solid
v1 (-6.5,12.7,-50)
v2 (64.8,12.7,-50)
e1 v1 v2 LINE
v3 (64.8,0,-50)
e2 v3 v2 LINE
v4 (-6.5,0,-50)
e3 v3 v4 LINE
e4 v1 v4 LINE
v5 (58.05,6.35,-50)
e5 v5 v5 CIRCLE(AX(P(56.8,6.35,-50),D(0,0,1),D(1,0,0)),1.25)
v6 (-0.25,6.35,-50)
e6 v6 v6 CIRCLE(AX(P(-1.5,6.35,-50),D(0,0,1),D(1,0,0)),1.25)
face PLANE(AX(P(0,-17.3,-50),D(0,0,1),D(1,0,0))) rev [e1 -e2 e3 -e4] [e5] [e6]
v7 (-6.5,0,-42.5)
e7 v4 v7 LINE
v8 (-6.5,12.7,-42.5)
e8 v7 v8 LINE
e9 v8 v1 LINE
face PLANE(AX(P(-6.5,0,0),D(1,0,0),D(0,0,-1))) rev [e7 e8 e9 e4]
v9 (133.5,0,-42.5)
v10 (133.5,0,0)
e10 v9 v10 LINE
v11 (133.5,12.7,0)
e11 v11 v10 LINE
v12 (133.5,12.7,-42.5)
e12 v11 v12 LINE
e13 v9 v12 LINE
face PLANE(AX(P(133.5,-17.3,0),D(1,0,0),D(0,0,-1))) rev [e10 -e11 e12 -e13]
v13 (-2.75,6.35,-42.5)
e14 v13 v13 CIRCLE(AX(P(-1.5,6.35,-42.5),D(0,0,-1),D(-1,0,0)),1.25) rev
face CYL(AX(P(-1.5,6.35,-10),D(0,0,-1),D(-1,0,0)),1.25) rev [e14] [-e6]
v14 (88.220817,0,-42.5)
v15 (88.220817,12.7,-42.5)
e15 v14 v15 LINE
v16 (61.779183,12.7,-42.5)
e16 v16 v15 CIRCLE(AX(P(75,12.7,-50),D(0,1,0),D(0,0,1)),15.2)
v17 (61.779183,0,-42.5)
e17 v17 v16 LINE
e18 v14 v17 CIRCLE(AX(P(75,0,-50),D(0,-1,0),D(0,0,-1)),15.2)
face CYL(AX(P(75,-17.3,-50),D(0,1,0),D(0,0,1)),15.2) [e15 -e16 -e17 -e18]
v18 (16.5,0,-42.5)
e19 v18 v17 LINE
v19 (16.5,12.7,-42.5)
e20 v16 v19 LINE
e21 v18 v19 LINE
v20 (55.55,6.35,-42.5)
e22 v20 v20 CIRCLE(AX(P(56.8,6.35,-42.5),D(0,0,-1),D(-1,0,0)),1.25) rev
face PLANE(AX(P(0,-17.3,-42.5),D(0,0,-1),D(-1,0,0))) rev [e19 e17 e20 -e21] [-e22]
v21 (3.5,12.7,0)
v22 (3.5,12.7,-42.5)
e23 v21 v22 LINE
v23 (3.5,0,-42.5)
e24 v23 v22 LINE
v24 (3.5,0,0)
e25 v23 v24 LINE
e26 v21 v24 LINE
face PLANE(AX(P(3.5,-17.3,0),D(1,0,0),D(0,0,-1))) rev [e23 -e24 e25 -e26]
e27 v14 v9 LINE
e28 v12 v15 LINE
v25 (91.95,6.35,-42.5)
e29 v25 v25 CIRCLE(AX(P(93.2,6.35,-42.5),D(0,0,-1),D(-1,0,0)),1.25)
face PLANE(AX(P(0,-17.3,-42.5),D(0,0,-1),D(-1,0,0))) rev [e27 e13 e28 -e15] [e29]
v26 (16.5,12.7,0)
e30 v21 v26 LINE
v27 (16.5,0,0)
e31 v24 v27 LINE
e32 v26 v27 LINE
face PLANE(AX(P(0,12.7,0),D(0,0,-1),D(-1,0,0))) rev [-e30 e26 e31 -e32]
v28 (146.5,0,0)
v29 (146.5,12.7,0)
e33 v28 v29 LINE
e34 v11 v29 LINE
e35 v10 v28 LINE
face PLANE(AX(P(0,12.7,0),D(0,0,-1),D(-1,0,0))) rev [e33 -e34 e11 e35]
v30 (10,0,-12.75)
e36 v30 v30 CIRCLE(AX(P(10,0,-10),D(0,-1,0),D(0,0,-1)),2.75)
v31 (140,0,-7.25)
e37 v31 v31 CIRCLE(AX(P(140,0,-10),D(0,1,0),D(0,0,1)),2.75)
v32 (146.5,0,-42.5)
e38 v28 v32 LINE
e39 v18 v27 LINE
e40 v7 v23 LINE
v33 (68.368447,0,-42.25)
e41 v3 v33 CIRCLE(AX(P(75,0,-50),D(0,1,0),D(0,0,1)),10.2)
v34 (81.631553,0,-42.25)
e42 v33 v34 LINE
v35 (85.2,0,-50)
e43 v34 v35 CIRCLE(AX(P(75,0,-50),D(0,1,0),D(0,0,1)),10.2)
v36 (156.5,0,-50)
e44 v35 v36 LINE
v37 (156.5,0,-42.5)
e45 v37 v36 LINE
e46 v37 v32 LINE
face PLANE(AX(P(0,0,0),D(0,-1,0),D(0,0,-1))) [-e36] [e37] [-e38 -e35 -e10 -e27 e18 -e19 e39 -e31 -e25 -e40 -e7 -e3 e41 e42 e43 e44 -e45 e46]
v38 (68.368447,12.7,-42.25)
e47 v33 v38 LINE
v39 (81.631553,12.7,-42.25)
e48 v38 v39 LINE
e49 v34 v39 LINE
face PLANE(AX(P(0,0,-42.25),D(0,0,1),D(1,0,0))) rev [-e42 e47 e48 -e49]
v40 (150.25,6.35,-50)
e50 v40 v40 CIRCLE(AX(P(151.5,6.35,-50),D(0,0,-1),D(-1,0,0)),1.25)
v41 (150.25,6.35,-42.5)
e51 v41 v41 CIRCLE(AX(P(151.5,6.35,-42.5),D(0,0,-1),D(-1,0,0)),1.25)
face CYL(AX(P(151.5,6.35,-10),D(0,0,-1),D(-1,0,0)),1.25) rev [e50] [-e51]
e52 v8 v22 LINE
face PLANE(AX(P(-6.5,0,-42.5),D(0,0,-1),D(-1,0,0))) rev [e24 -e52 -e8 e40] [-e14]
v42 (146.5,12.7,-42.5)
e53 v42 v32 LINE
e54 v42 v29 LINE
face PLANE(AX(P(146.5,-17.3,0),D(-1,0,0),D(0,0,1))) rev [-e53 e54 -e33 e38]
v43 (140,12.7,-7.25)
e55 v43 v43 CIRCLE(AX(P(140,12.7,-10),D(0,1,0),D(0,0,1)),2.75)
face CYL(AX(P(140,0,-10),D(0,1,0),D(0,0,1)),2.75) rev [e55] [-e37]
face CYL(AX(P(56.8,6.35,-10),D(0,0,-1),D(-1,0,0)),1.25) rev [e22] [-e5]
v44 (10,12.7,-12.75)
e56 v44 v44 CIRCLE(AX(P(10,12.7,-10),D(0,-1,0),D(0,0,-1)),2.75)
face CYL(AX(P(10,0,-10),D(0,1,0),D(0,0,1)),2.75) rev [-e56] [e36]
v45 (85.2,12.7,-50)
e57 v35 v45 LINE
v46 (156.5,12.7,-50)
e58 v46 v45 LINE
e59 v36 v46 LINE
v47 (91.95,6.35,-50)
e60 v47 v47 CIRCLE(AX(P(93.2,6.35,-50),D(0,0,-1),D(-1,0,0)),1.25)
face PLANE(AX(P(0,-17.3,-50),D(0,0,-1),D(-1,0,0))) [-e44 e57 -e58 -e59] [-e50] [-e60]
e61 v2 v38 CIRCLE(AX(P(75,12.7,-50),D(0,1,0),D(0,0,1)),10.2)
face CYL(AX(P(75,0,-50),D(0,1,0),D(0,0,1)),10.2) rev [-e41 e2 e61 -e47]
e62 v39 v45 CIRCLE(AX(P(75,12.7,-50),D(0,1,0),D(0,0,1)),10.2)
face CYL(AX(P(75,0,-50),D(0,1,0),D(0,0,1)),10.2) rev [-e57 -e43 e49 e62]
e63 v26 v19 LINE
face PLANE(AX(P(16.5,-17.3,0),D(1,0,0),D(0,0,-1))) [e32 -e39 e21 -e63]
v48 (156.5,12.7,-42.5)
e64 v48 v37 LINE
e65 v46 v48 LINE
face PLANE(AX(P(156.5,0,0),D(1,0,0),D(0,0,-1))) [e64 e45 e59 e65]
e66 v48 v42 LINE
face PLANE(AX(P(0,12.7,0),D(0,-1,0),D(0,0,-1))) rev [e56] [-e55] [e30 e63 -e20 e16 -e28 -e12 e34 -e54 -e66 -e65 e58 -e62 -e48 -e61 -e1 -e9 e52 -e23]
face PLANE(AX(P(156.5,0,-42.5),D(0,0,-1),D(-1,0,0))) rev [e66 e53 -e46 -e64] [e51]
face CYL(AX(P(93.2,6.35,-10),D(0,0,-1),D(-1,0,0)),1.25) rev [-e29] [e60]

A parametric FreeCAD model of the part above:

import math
import FreeCAD as App
import Part
import Sketcher

V = App.Vector


def add_polygon(sketch, points):
    """Adds a closed chain of lines whose ends are joined by coincident constraints."""
    first, n = sketch.GeometryCount, len(points)
    for a, b in zip(points, points[1:] + points[:1]):
        sketch.addGeometry(Part.LineSegment(App.Vector(*a, 0), App.Vector(*b, 0)), False)
    for i in range(n):
        sketch.addConstraint(Sketcher.Constraint("Coincident", first + i, 2, first + (i + 1) % n, 1))

doc = App.newDocument("Part")
body = doc.addObject("PartDesign::Body", "Body")

sketch1 = doc.addObject("Sketcher::SketchObject", "Sketch")
body.addObject(sketch1)
sketch1.AttachmentSupport = (doc.XZ_Plane, [""])
sketch1.MapMode = "FlatFace"
add_polygon(sketch1, [(0, -100), (0, 0), (150, 0), (150, -100)])
sketch1.addConstraint([
    Sketcher.Constraint("Vertical", 0),
    Sketcher.Constraint("Horizontal", 1),
    Sketcher.Constraint("Vertical", 2),
    Sketcher.Constraint("Horizontal", 3),
    Sketcher.Constraint("Coincident", 0, 2, -1, 1),
    Sketcher.Constraint("DistanceX", 1, 1, 1, 2, 150.0),
    Sketcher.Constraint("DistanceY", 0, 1, 0, 2, 100.0),
])
pad1 = doc.addObject("PartDesign::Pad", "Pad")
body.addObject(pad1)
pad1.Profile = sketch1
pad1.Length = 12.7
pad1.Reversed = True

sketch2 = doc.addObject("Sketcher::SketchObject", "Sketch001")
body.addObject(sketch2)
sketch2.AttachmentSupport = (doc.XZ_Plane, [""])
sketch2.MapMode = "FlatFace"
sketch2.AttachmentOffset = App.Placement(V(0, 0, -12.7), App.Rotation())
sketch2.addGeometry([
    Part.ArcOfCircle(Part.Circle(V(75, -50, 0), V(0, 0, 1), 10.2), math.radians(0), math.radians(49.446915)),
    Part.ArcOfCircle(Part.Circle(V(75, -50, 0), V(0, 0, 1), 10.2), math.radians(-49.446915), math.radians(0)),
    Part.LineSegment(V(81.631553, -57.75, 0), V(68.368447, -57.75, 0)),
    Part.ArcOfCircle(Part.Circle(V(75, -50, 0), V(0, 0, 1), 10.2), math.radians(180), math.radians(229.446915)),
    Part.ArcOfCircle(Part.Circle(V(75, -50, 0), V(0, 0, 1), 10.2), math.radians(130.553085), math.radians(180)),
    Part.LineSegment(V(68.368447, -42.25, 0), V(81.631553, -42.25, 0)),
    Part.Circle(V(10, -90, 0), V(0, 0, 1), 2.75),
    Part.Circle(V(140, -90, 0), V(0, 0, 1), 2.75),
    Part.Circle(V(140, -10, 0), V(0, 0, 1), 2.75),
    Part.Circle(V(10, -10, 0), V(0, 0, 1), 2.75),
], False)
sketch2.addConstraint([
    Sketcher.Constraint("Tangent", 0, 1, 1, 2),
    Sketcher.Constraint("Coincident", 1, 1, 2, 1),
    Sketcher.Constraint("Coincident", 2, 2, 3, 2),
    Sketcher.Constraint("Tangent", 3, 1, 4, 2),
    Sketcher.Constraint("Coincident", 4, 1, 5, 1),
    Sketcher.Constraint("Coincident", 5, 2, 0, 2),
    Sketcher.Constraint("Horizontal", 2),
    Sketcher.Constraint("Horizontal", 5),
    Sketcher.Constraint("Coincident", 3, 3, 0, 3),
    Sketcher.Constraint("Equal", 0, 1),
    Sketcher.Constraint("Equal", 1, 3),
    Sketcher.Constraint("Equal", 3, 4),
    Sketcher.Constraint("Equal", 6, 7),
    Sketcher.Constraint("Equal", 7, 8),
    Sketcher.Constraint("Equal", 8, 9),
    Sketcher.Constraint("Horizontal", 6, 3, 7, 3),
    Sketcher.Constraint("Horizontal", 8, 3, 9, 3),
    Sketcher.Constraint("Horizontal", 4, 3, 0, 1),
    Sketcher.Constraint("Horizontal", 0, 1, 3, 1),
    Sketcher.Constraint("Vertical", 7, 3, 8, 3),
    Sketcher.Constraint("Vertical", 6, 3, 9, 3),
    Sketcher.Constraint("Vertical", 2, 2, 4, 1),
    Sketcher.Constraint("Diameter", 6, 5.5),
    Sketcher.Constraint("Radius", 0, 10.2),
    Sketcher.Constraint("DistanceX", -1, 1, 0, 3, 75.0),
    Sketcher.Constraint("DistanceY", 0, 3, -1, 1, 50.0),
    Sketcher.Constraint("DistanceX", -1, 1, 6, 3, 10.0),
    Sketcher.Constraint("DistanceY", 6, 3, -1, 1, 90.0),
    Sketcher.Constraint("DistanceX", -1, 1, 7, 3, 140.0),
    Sketcher.Constraint("DistanceY", 8, 3, -1, 1, 10.0),
    Sketcher.Constraint("DistanceY", 1, 1, -1, 1, 57.75),
])
pocket1 = doc.addObject("PartDesign::Pocket", "Pocket")
body.addObject(pocket1)
pocket1.Profile = sketch2
pocket1.Length = 12.7
pocket1.Reversed = True

sketch3 = doc.addObject("Sketcher::SketchObject", "Sketch002")
body.addObject(sketch3)
sketch3.AttachmentSupport = (doc.XZ_Plane, [""])
sketch3.MapMode = "FlatFace"
sketch3.AttachmentOffset = App.Placement(V(0, 0, -12.7), App.Rotation())
sketch3.addGeometry([
    Part.LineSegment(V(146.5, -50, 0), V(146.5, 0, 0)),
    Part.LineSegment(V(146.5, 0, 0), V(150, 0, 0)),
    Part.LineSegment(V(150, 0, 0), V(150, -100, 0)),
    Part.LineSegment(V(150, -100, 0), V(0, -100, 0)),
    Part.LineSegment(V(0, -100, 0), V(0, 0, 0)),
    Part.LineSegment(V(0, 0, 0), V(3.5, 0, 0)),
    Part.LineSegment(V(3.5, 0, 0), V(3.5, -50, 0)),
    Part.LineSegment(V(3.5, -50, 0), V(64.8, -50, 0)),
    Part.ArcOfCircle(Part.Circle(V(75, -50, 0), V(0, 0, 1), 10.2), math.radians(132.667925), math.radians(180)),
    Part.LineSegment(V(68.086969, -42.5, 0), V(81.913031, -42.5, 0)),
    Part.ArcOfCircle(Part.Circle(V(75, -50, 0), V(0, 0, 1), 10.2), math.radians(0), math.radians(47.332075)),
    Part.LineSegment(V(85.2, -50, 0), V(146.5, -50, 0)),
    Part.Circle(V(10, -90, 0), V(0, 0, 1), 2.75),
    Part.Circle(V(140, -90, 0), V(0, 0, 1), 2.75),
    Part.LineSegment(V(133.5, 0, 0), V(133.5, -42.5, 0)),
    Part.LineSegment(V(133.5, -42.5, 0), V(88.220817, -42.5, 0)),
    Part.ArcOfCircle(Part.Circle(V(75, -50, 0), V(0, 0, 1), 15.2), math.radians(29.565687), math.radians(150.434313)),
    Part.LineSegment(V(61.779183, -42.5, 0), V(16.5, -42.5, 0)),
    Part.LineSegment(V(16.5, -42.5, 0), V(16.5, 0, 0)),
    Part.LineSegment(V(16.5, 0, 0), V(133.5, 0, 0)),
], False)
sketch3.addConstraint([
    Sketcher.Constraint("Coincident", 0, 2, 1, 1),
    Sketcher.Constraint("Coincident", 1, 2, 2, 1),
    Sketcher.Constraint("Coincident", 2, 2, 3, 1),
    Sketcher.Constraint("Coincident", 3, 2, 4, 1),
    Sketcher.Constraint("Coincident", 4, 2, 5, 1),
    Sketcher.Constraint("Coincident", 5, 2, 6, 1),
    Sketcher.Constraint("Coincident", 6, 2, 7, 1),
    Sketcher.Constraint("Coincident", 7, 2, 8, 2),
    Sketcher.Constraint("Coincident", 8, 1, 9, 1),
    Sketcher.Constraint("Coincident", 9, 2, 10, 2),
    Sketcher.Constraint("Coincident", 10, 1, 11, 1),
    Sketcher.Constraint("Coincident", 11, 2, 0, 1),
    Sketcher.Constraint("Coincident", 14, 2, 15, 1),
    Sketcher.Constraint("Coincident", 15, 2, 16, 1),
    Sketcher.Constraint("Coincident", 16, 2, 17, 1),
    Sketcher.Constraint("Coincident", 17, 2, 18, 1),
    Sketcher.Constraint("Coincident", 18, 2, 19, 1),
    Sketcher.Constraint("Coincident", 19, 2, 14, 1),
    Sketcher.Constraint("Vertical", 0),
    Sketcher.Constraint("Horizontal", 1),
    Sketcher.Constraint("Vertical", 2),
    Sketcher.Constraint("Horizontal", 3),
    Sketcher.Constraint("Vertical", 4),
    Sketcher.Constraint("Horizontal", 5),
    Sketcher.Constraint("Vertical", 6),
    Sketcher.Constraint("Horizontal", 7),
    Sketcher.Constraint("Horizontal", 9),
    Sketcher.Constraint("Horizontal", 11),
    Sketcher.Constraint("Vertical", 14),
    Sketcher.Constraint("Horizontal", 15),
    Sketcher.Constraint("Horizontal", 17),
    Sketcher.Constraint("Vertical", 18),
    Sketcher.Constraint("Horizontal", 19),
    Sketcher.Constraint("Coincident", 4, 2, -1, 1),
    Sketcher.Constraint("Coincident", 10, 3, 8, 3),
    Sketcher.Constraint("Coincident", 16, 3, 8, 3),
    Sketcher.Constraint("Equal", 8, 10),
    Sketcher.Constraint("Equal", 12, 13),
    Sketcher.Constraint("PointOnObject", 0, 2, -1),
    Sketcher.Constraint("PointOnObject", 18, 2, -1),
    Sketcher.Constraint("Horizontal", 12, 3, 13, 3),
    Sketcher.Constraint("Horizontal", 16, 3, 6, 2),
    Sketcher.Constraint("Horizontal", 7, 2, 10, 1),
    Sketcher.Constraint("Horizontal", 9, 2, 14, 2),
    Sketcher.Constraint("Horizontal", 15, 2, 16, 2),
    Sketcher.Constraint("Equal", 1, 5),
    Sketcher.Constraint("Equal", 7, 11),
    Sketcher.Constraint("Equal", 15, 17),
    Sketcher.Constraint("Diameter", 12, 5.5),
    Sketcher.Constraint("Radius", 8, 10.2),
    Sketcher.Constraint("Radius", 16, 15.2),
    Sketcher.Constraint("DistanceX", 3, 2, 3, 1, 150.0),
    Sketcher.Constraint("DistanceX", 19, 1, 19, 2, 117.0),
    Sketcher.Constraint("DistanceY", 0, 1, 0, 2, 50.0),
    Sketcher.Constraint("DistanceY", 2, 2, 2, 1, 100.0),
    Sketcher.Constraint("DistanceX", 1, 1, 1, 2, 3.5),
    Sketcher.Constraint("DistanceY", 14, 2, 14, 1, 42.5),
    Sketcher.Constraint("DistanceX", -1, 1, 12, 3, 10.0),
    Sketcher.Constraint("DistanceY", 12, 3, -1, 1, 90.0),
    Sketcher.Constraint("DistanceX", -1, 1, 13, 3, 140.0),
])
pocket2 = doc.addObject("PartDesign::Pocket", "Pocket001")
body.addObject(pocket2)
pocket2.Profile = sketch3
pocket2.Length = 30
pocket2.Reversed = True

sketch4 = doc.addObject("Sketcher::SketchObject", "Sketch003")
body.addObject(sketch4)
sketch4.AttachmentSupport = (doc.YZ_Plane, [""])
sketch4.MapMode = "FlatFace"
sketch4.AttachmentOffset = App.Placement(V(0, 0, 146.5), App.Rotation())
add_polygon(sketch4, [(12.7, -42.5), (0, -42.5), (0, -50), (12.7, -50)])
sketch4.addConstraint([
    Sketcher.Constraint("Horizontal", 0),
    Sketcher.Constraint("Vertical", 1),
    Sketcher.Constraint("Horizontal", 2),
    Sketcher.Constraint("Vertical", 3),
    Sketcher.Constraint("PointOnObject", 0, 2, -2),
    Sketcher.Constraint("DistanceX", 0, 2, 0, 1, 12.7),
    Sketcher.Constraint("DistanceY", 1, 2, 1, 1, 7.5),
    Sketcher.Constraint("DistanceY", 1, 2, -1, 1, 50.0),
])
pad2 = doc.addObject("PartDesign::Pad", "Pad001")
body.addObject(pad2)
pad2.Profile = sketch4
pad2.Length = 10

sketch5 = doc.addObject("Sketcher::SketchObject", "Sketch004")
body.addObject(sketch5)
sketch5.AttachmentSupport = (doc.YZ_Plane, [""])
sketch5.MapMode = "FlatFace"
sketch5.AttachmentOffset = App.Placement(V(0, 0, 3.5), App.Rotation())
add_polygon(sketch5, [(12.7, -50), (0, -50), (0, -42.5), (12.7, -42.5)])
sketch5.addConstraint([
    Sketcher.Constraint("Horizontal", 0),
    Sketcher.Constraint("Vertical", 1),
    Sketcher.Constraint("Horizontal", 2),
    Sketcher.Constraint("Vertical", 3),
    Sketcher.Constraint("PointOnObject", 0, 2, -2),
    Sketcher.Constraint("DistanceX", 0, 2, 0, 1, 12.7),
    Sketcher.Constraint("DistanceY", 1, 1, 1, 2, 7.5),
    Sketcher.Constraint("DistanceY", 0, 2, -1, 1, 50.0),
])
pad3 = doc.addObject("PartDesign::Pad", "Pad002")
body.addObject(pad3)
pad3.Profile = sketch5
pad3.Length = 10
pad3.Reversed = True

sketch6 = doc.addObject("Sketcher::SketchObject", "Sketch005")
body.addObject(sketch6)
sketch6.AttachmentSupport = (doc.XY_Plane, [""])
sketch6.MapMode = "FlatFace"
sketch6.AttachmentOffset = App.Placement(V(0, 0, -50), App.Rotation())
sketch6.addGeometry([
    Part.Circle(V(151.5, 6.35, 0), V(0, 0, 1), 1.25),
    Part.Circle(V(93.2, 6.35, 0), V(0, 0, 1), 1.25),
    Part.Circle(V(56.8, 6.35, 0), V(0, 0, 1), 1.25),
    Part.Circle(V(-1.5, 6.35, 0), V(0, 0, 1), 1.25),
], False)
sketch6.addConstraint([
    Sketcher.Constraint("Equal", 0, 1),
    Sketcher.Constraint("Equal", 1, 2),
    Sketcher.Constraint("Equal", 2, 3),
    Sketcher.Constraint("Horizontal", 0, 3, 1, 3),
    Sketcher.Constraint("Horizontal", 1, 3, 2, 3),
    Sketcher.Constraint("Horizontal", 2, 3, 3, 3),
    Sketcher.Constraint("Diameter", 0, 2.5),
    Sketcher.Constraint("DistanceX", 3, 3, 0, 3, 153.0),
    Sketcher.Constraint("DistanceX", -1, 1, 0, 3, 151.5),
    Sketcher.Constraint("DistanceX", -1, 1, 1, 3, 93.2),
    Sketcher.Constraint("DistanceX", -1, 1, 2, 3, 56.8),
    Sketcher.Constraint("DistanceY", -1, 1, 0, 3, 6.35),
])
pocket3 = doc.addObject("PartDesign::Pocket", "Pocket002")
body.addObject(pocket3)
pocket3.Profile = sketch6
pocket3.Length = 40
pocket3.Reversed = True

doc.recompute()
